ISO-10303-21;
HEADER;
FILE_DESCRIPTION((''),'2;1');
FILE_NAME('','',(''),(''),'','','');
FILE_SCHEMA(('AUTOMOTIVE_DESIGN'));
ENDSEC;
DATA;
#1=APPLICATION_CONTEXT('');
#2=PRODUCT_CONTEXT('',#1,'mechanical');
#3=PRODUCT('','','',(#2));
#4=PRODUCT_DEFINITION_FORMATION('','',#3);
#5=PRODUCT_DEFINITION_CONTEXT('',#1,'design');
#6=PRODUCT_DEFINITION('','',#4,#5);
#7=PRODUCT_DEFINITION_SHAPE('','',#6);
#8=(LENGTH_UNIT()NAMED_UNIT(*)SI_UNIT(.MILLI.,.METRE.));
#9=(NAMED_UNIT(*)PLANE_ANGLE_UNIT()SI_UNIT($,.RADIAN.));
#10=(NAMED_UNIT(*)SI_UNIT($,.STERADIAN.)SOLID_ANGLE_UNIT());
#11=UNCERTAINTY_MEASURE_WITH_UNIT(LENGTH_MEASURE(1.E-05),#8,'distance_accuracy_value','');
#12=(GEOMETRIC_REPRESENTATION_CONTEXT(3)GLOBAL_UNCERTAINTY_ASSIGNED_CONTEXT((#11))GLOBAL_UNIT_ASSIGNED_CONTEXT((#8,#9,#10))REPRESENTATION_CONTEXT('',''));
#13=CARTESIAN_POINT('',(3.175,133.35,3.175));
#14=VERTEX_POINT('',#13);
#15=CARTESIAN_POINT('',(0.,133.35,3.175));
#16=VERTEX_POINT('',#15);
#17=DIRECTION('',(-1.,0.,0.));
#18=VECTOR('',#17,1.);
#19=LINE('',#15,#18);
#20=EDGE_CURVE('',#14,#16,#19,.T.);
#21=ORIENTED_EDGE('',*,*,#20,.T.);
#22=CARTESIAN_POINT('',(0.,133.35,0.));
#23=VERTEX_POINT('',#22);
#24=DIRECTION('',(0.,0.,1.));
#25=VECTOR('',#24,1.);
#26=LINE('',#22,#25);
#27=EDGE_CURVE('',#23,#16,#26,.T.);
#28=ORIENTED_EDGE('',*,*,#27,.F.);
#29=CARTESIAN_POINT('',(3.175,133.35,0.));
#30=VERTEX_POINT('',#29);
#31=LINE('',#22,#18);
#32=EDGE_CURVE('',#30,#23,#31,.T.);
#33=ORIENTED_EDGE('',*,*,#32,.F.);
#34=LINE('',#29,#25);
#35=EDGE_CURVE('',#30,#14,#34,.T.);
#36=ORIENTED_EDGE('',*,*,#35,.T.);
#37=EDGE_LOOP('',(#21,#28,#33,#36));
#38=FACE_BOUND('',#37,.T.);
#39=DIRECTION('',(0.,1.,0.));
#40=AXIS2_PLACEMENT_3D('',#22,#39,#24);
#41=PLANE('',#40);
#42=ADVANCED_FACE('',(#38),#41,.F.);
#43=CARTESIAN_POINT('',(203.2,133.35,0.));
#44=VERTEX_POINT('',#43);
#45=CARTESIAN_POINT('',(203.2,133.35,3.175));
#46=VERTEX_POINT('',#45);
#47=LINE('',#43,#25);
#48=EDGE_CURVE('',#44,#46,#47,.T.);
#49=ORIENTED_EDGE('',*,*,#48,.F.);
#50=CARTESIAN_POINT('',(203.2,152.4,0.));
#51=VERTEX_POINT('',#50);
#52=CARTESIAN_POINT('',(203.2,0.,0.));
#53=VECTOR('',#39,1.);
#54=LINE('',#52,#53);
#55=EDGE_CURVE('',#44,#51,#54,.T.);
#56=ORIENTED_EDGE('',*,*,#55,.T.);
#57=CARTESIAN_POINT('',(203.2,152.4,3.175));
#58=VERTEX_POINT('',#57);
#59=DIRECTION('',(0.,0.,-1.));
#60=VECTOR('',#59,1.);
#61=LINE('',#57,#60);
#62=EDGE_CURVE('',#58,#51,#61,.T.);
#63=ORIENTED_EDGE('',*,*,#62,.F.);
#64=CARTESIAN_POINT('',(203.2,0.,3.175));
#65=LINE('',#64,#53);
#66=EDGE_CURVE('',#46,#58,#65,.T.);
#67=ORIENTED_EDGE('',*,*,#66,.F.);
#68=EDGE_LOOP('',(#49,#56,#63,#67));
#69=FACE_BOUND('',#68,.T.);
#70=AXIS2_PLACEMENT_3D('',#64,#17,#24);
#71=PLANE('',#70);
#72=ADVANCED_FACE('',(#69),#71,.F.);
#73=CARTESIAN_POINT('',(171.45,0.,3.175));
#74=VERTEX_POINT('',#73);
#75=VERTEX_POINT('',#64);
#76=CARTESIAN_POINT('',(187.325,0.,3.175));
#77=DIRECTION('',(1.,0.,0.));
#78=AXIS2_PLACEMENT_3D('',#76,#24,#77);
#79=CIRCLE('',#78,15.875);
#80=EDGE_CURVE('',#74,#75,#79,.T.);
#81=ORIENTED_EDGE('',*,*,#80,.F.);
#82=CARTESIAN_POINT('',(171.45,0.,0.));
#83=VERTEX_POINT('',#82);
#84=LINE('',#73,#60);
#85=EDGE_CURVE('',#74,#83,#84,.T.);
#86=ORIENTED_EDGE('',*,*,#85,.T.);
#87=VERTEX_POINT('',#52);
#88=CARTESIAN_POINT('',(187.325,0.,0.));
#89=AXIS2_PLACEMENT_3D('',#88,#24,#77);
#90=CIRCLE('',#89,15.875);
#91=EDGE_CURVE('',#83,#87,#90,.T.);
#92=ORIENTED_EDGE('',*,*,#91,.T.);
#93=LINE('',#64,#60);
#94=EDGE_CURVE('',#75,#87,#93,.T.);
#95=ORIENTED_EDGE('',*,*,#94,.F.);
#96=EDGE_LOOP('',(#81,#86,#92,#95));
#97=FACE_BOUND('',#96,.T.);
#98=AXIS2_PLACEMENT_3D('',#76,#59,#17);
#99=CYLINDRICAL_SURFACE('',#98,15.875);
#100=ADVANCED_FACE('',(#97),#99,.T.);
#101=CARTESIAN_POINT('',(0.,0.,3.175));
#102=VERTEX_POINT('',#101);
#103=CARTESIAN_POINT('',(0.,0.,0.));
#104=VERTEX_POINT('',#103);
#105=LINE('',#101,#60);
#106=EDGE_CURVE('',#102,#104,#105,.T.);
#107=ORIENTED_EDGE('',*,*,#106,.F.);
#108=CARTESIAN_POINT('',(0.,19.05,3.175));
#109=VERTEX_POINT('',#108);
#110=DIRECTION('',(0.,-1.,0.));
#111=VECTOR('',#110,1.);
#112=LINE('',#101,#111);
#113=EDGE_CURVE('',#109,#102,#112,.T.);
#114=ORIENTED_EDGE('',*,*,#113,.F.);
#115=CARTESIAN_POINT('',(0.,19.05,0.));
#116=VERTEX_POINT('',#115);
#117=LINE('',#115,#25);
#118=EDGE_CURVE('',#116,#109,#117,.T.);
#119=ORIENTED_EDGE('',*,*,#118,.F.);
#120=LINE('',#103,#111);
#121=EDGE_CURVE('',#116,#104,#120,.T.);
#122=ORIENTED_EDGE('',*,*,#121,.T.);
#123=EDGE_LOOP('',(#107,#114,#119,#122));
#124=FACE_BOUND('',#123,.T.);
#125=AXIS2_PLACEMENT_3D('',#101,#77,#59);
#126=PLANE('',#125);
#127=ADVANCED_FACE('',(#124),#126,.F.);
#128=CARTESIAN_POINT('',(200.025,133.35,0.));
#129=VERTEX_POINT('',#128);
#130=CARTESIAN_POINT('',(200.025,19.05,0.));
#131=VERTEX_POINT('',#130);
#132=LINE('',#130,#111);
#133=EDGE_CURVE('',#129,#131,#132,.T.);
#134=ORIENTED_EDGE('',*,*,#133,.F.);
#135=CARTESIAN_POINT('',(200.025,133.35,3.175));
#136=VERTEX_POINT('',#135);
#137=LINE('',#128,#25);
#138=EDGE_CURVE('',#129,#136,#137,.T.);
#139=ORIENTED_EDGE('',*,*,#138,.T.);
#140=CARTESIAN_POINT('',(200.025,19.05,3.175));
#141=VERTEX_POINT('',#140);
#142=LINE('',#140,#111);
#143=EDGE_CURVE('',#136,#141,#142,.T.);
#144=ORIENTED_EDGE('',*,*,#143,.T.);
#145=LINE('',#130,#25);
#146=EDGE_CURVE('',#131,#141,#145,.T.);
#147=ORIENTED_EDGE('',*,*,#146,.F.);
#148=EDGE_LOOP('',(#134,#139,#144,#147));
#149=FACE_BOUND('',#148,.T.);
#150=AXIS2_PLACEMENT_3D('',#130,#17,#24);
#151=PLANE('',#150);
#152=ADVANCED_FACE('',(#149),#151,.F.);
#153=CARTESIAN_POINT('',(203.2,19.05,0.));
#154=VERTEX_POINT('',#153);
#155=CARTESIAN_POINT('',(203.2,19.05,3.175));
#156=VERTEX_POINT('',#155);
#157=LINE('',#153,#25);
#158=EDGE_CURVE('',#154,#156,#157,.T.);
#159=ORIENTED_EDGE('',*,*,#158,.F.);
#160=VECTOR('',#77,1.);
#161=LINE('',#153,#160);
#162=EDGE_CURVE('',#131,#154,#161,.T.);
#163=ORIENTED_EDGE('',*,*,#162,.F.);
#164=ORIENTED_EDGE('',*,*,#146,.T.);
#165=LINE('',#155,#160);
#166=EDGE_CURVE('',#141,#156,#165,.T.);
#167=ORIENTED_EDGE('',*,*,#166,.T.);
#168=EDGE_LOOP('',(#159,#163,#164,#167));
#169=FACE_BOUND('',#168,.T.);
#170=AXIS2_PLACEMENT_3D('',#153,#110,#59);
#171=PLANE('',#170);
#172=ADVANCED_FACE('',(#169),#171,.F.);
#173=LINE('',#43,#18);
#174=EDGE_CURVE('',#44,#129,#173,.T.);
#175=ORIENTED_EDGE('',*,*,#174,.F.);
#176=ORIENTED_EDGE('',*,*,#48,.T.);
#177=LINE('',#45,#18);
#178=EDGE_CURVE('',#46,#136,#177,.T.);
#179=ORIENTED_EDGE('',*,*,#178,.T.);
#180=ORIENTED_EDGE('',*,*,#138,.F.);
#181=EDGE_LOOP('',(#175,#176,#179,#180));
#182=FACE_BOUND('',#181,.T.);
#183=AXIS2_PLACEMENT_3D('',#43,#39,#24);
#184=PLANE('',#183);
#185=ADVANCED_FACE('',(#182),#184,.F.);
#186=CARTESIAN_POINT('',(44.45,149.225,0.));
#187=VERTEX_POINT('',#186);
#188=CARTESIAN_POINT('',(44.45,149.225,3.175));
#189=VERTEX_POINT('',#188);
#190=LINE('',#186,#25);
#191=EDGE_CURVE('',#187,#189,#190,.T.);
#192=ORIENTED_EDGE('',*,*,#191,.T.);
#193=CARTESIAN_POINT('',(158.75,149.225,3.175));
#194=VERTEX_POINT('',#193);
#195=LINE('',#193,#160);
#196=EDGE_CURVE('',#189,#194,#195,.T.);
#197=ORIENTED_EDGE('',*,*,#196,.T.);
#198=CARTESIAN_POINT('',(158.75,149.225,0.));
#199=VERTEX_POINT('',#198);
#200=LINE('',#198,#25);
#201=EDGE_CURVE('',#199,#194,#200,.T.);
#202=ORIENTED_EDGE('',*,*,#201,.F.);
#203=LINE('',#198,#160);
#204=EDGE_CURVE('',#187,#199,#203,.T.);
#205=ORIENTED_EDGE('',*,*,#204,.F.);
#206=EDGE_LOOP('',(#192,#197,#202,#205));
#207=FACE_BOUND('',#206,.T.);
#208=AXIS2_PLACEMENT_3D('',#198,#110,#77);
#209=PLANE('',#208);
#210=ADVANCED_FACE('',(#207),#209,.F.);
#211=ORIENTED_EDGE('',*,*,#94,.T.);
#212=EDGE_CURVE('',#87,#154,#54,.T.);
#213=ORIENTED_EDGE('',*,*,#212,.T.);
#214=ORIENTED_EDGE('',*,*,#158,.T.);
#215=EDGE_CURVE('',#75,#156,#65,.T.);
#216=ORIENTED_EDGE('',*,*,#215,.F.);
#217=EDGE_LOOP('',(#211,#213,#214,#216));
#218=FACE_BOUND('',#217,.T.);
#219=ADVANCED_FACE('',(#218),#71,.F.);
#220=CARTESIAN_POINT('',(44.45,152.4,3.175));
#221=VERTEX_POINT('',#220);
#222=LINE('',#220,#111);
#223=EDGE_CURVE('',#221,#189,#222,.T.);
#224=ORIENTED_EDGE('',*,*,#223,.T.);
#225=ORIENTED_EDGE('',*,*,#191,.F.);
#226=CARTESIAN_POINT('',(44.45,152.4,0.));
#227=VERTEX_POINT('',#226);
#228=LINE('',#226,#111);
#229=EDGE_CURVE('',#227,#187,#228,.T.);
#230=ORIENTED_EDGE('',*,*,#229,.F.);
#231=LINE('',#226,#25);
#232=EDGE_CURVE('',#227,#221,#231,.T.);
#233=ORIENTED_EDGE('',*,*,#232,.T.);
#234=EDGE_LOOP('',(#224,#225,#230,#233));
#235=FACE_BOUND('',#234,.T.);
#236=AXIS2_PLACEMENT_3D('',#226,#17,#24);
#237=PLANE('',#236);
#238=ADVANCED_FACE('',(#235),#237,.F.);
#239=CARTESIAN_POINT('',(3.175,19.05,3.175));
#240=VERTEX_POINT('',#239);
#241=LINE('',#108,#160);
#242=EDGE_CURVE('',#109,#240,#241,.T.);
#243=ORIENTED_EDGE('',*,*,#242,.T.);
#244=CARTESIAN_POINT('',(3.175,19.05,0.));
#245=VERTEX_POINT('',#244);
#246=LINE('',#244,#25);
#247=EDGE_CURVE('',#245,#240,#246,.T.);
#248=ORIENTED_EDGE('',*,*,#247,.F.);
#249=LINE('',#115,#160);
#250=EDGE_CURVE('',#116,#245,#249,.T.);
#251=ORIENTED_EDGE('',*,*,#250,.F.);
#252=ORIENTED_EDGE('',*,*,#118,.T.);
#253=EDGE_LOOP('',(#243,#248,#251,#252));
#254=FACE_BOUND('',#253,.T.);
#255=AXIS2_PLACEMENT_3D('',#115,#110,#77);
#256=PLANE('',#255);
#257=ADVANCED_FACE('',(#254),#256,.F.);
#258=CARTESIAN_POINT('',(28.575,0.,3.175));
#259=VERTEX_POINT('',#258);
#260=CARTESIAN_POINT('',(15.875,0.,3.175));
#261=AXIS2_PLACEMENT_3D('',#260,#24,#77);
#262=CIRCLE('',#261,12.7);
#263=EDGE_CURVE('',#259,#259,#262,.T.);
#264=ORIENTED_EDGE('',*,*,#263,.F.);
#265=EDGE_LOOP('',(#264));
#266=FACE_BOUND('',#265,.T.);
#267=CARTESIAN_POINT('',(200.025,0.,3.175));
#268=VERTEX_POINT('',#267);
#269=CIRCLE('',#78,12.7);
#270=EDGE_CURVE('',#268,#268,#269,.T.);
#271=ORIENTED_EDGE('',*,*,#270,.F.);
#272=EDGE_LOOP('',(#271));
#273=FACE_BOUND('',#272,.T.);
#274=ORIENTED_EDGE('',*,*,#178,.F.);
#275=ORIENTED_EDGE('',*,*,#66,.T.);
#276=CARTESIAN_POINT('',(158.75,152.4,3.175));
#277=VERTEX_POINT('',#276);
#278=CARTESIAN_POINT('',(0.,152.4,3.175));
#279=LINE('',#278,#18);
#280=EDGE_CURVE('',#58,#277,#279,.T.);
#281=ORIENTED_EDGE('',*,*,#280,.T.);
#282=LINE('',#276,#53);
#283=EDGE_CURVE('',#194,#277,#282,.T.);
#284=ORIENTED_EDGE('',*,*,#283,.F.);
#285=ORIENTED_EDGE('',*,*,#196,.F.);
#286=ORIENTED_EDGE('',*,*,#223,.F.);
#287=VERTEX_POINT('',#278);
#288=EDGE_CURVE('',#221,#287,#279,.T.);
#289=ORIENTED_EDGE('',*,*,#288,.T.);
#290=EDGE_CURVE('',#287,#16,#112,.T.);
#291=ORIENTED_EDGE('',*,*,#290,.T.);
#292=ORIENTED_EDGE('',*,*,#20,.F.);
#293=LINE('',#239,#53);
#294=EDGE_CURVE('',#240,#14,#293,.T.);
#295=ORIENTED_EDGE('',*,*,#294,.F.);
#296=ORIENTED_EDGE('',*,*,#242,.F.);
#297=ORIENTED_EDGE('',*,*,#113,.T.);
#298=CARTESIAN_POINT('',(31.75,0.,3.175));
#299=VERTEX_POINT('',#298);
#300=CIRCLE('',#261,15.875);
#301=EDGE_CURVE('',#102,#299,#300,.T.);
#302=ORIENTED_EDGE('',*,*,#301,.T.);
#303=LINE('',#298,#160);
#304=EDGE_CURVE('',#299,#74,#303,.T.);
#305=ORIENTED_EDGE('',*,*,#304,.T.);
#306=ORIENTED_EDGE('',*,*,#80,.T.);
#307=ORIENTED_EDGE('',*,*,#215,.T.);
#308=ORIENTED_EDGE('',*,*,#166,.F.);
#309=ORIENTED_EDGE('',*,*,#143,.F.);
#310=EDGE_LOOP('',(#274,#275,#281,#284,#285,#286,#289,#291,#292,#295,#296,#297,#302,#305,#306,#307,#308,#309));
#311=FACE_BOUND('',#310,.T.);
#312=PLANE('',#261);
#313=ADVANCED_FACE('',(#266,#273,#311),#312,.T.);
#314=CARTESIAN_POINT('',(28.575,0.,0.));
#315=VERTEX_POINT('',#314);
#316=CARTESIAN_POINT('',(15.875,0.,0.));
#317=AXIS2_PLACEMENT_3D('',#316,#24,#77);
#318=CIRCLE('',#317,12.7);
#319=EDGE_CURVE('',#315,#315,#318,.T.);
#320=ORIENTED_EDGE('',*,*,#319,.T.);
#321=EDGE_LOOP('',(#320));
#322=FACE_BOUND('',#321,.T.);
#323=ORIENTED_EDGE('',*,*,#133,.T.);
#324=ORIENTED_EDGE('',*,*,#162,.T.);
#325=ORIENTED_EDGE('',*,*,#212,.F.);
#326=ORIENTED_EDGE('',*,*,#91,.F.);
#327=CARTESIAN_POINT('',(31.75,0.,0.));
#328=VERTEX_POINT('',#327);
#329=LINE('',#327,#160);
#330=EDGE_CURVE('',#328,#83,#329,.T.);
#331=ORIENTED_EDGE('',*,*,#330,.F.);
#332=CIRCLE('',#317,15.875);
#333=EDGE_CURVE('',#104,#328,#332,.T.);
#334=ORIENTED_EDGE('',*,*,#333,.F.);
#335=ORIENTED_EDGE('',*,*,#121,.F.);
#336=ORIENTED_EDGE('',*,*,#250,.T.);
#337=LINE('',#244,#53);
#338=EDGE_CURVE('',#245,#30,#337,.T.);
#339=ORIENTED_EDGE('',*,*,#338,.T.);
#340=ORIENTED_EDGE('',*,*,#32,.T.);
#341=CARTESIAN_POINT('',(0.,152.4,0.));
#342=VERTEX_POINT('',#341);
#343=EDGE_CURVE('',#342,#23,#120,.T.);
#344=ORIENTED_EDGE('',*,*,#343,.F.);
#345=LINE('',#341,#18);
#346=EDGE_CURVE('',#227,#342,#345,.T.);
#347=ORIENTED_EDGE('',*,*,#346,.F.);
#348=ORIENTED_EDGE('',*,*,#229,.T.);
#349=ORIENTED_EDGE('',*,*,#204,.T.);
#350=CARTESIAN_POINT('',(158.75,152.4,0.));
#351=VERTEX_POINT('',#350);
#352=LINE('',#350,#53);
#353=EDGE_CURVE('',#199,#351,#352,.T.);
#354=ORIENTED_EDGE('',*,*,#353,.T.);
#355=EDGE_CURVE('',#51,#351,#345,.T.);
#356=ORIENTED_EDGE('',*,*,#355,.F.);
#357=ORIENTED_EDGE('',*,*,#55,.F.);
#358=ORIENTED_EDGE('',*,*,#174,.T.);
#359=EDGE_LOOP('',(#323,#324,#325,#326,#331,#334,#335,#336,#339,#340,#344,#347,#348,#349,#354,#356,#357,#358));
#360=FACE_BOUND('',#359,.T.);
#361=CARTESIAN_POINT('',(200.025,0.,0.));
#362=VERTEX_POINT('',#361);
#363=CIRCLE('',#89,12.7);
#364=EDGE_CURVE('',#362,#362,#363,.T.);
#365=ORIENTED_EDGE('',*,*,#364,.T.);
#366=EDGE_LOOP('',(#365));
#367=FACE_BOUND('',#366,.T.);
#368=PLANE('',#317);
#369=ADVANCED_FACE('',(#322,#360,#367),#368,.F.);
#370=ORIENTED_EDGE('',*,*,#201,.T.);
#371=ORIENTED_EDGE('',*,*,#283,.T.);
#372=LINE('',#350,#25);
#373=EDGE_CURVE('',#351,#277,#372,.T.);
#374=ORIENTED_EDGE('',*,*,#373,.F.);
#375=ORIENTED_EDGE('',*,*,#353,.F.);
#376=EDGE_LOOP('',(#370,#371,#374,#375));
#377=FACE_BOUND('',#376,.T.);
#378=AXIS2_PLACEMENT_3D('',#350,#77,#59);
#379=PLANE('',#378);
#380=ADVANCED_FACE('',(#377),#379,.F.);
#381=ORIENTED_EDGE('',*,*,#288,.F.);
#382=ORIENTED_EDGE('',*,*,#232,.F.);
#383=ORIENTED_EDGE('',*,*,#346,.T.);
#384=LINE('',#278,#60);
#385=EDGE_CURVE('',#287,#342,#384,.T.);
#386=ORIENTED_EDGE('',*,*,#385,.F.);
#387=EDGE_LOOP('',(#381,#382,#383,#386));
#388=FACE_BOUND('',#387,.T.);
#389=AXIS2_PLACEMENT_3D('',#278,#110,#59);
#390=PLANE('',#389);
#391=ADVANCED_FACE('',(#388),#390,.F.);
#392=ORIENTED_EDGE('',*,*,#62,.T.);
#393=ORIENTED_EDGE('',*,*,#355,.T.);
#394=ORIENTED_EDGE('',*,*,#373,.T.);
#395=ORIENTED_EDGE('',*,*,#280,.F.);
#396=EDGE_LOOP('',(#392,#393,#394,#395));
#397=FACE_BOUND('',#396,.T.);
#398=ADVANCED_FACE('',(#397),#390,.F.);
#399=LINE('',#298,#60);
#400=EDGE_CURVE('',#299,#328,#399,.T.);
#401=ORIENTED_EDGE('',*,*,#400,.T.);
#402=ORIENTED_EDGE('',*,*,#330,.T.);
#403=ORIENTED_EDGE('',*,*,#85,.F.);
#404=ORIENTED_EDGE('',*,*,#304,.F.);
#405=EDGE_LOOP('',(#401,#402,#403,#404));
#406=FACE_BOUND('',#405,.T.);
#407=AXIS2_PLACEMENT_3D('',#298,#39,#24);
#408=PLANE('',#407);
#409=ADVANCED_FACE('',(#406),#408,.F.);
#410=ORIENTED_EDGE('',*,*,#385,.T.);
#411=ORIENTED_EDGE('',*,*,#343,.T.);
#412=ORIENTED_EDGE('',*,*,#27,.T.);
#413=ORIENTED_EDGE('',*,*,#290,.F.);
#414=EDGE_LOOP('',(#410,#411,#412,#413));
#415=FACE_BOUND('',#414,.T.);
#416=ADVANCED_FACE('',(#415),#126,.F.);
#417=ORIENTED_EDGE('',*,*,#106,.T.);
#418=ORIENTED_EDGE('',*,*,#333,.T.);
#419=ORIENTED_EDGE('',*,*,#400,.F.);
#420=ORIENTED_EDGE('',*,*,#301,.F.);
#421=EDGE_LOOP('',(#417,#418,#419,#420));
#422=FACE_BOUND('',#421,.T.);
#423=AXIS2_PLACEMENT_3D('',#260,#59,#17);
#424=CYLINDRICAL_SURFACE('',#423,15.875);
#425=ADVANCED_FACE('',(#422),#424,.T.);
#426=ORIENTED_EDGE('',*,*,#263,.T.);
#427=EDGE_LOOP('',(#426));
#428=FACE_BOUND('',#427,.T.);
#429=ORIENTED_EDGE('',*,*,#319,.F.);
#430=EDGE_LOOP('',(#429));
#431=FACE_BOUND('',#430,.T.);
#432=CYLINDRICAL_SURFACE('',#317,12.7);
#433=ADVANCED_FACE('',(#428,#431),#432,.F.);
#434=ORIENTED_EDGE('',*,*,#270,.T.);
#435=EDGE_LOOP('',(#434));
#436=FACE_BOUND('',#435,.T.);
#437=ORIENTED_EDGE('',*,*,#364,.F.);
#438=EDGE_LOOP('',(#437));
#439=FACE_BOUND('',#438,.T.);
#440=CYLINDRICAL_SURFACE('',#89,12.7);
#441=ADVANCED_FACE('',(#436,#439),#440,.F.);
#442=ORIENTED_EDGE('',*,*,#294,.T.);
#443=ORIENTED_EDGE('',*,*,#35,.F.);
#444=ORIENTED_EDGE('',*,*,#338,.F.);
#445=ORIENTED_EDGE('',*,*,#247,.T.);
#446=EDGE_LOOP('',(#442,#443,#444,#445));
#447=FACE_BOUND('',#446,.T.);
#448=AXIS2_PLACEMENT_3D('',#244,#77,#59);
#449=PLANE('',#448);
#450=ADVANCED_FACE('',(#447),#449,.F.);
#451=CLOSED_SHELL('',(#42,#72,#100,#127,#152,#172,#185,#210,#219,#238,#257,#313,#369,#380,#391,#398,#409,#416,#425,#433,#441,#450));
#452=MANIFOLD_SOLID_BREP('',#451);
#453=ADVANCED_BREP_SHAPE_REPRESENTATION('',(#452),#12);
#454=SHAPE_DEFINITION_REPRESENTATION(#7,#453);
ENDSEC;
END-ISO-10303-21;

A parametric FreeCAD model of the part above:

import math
import FreeCAD as App
import Part
import Sketcher
Q = App.Units.Quantity


def add_polygon(sketch, points):
    """Adds a closed chain of lines whose ends are joined by coincident constraints."""
    first, n = sketch.GeometryCount, len(points)
    for a, b in zip(points, points[1:] + points[:1]):
        sketch.addGeometry(Part.LineSegment(App.Vector(*a, 0), App.Vector(*b, 0)), False)
    for i in range(n):
        sketch.addConstraint(Sketcher.Constraint("Coincident", first + i, 2, first + (i + 1) % n, 1))

doc = App.newDocument("Part")
body = doc.addObject("PartDesign::Body", "Body")

# Sketch on XY plane
sketch1 = body.newObject("Sketcher::SketchObject", "Sketch")
sketch1.AttachmentSupport = (doc.getObject("XY_Plane"), [""])
sketch1.MapMode = "FlatFace"
sketch1.addGeometry(Part.LineSegment(App.Vector(0, 152.4, 0), App.Vector(0, 0, 0)), False)
sketch1.addGeometry(Part.ArcOfCircle(Part.Circle(App.Vector(15.875, 0, 0), App.Vector(0, 0, 1), 15.875), math.radians(180), math.radians(360)), False)
sketch1.addGeometry(Part.LineSegment(App.Vector(31.75, 0, 0), App.Vector(171.45, 0, 0)), False)
sketch1.addGeometry(Part.ArcOfCircle(Part.Circle(App.Vector(187.325, 0, 0), App.Vector(0, 0, 1), 15.875), math.radians(180), math.radians(360)), False)
sketch1.addGeometry(Part.LineSegment(App.Vector(203.2, 0, 0), App.Vector(203.2, 152.4, 0)), False)
sketch1.addGeometry(Part.LineSegment(App.Vector(203.2, 152.4, 0), App.Vector(0, 152.4, 0)), False)
sketch1.addConstraint(Sketcher.Constraint("Tangent", 0, 2, 1, 1))
sketch1.addConstraint(Sketcher.Constraint("Coincident", 1, 2, 2, 1))
sketch1.addConstraint(Sketcher.Constraint("Coincident", 2, 2, 3, 1))
sketch1.addConstraint(Sketcher.Constraint("Tangent", 3, 2, 4, 1))
sketch1.addConstraint(Sketcher.Constraint("Coincident", 4, 2, 5, 1))
sketch1.addConstraint(Sketcher.Constraint("Coincident", 5, 2, 0, 1))
sketch1.addConstraint(Sketcher.Constraint("Vertical", 0))
sketch1.addConstraint(Sketcher.Constraint("Horizontal", 2))
sketch1.addConstraint(Sketcher.Constraint("Vertical", 4))
sketch1.addConstraint(Sketcher.Constraint("Horizontal", 5))
sketch1.addConstraint(Sketcher.Constraint("Coincident", 0, 2, -1, 1))
sketch1.addConstraint(Sketcher.Constraint("Equal", 1, 3))
sketch1.addConstraint(Sketcher.Constraint("PointOnObject", 3, 3, -1))
sketch1.addConstraint(Sketcher.Constraint("PointOnObject", 1, 2, -1))
sketch1.addConstraint(Sketcher.Constraint("DistanceX", 5, 2, 5, 1, Q("8 in")))
sketch1.addConstraint(Sketcher.Constraint("DistanceY", 0, 2, 0, 1, Q("6 in")))
sketch1.addConstraint(Sketcher.Constraint("DistanceX", 2, 1, 2, 2, Q("5.5 in")))
pad1 = body.newObject("PartDesign::Pad", "Pad")
pad1.Profile = sketch1
pad1.Length = Q("0.125 in")

# Sketch on XY plane
sketch2 = body.newObject("Sketcher::SketchObject", "Sketch001")
sketch2.AttachmentSupport = (doc.getObject("XY_Plane"), [""])
sketch2.MapMode = "FlatFace"
sketch2.AttachmentOffset = App.Placement(App.Vector(0, 0, 0.125 * 25.4), App.Rotation())
sketch2.addGeometry(Part.Circle(App.Vector(15.875, 0, 0), App.Vector(0, 0, 1), 12.7), False)
sketch2.addGeometry(Part.Circle(App.Vector(187.325, 0, 0), App.Vector(0, 0, 1), 12.7), False)
sketch2.addConstraint(Sketcher.Constraint("Equal", 0, 1))
sketch2.addConstraint(Sketcher.Constraint("PointOnObject", 0, 3, -1))
sketch2.addConstraint(Sketcher.Constraint("PointOnObject", 1, 3, -1))
sketch2.addConstraint(Sketcher.Constraint("Diameter", 0, Q("1 in")))
sketch2.addConstraint(Sketcher.Constraint("DistanceX", 0, 3, 1, 3, Q("6.75 in")))
sketch2.addConstraint(Sketcher.Constraint("DistanceX", -1, 1, 0, 3, Q("0.625 in")))
pocket1 = body.newObject("PartDesign::Pocket", "Pocket")
pocket1.Profile = sketch2
pocket1.Type = "ThroughAll"
pocket1.Midplane = True

# Sketch on XY plane
sketch3 = body.newObject("Sketcher::SketchObject", "Sketch002")
sketch3.AttachmentSupport = (doc.getObject("XY_Plane"), [""])
sketch3.MapMode = "FlatFace"
sketch3.AttachmentOffset = App.Placement(App.Vector(0, 0, 0.125 * 25.4), App.Rotation())
add_polygon(sketch3, [(200.025, 133.35), (200.025, 19.05), (203.2, 19.05), (203.2, 133.35)])  # lines 0-3
add_polygon(sketch3, [(0, 133.35), (0, 19.05), (3.175, 19.05), (3.175, 133.35)])  # lines 4-7
add_polygon(sketch3, [(44.45, 152.4), (44.45, 149.225), (158.75, 149.225), (158.75, 152.4)])  # lines 8-11
sketch3.addConstraint(Sketcher.Constraint("Vertical", 0))
sketch3.addConstraint(Sketcher.Constraint("Horizontal", 1))
sketch3.addConstraint(Sketcher.Constraint("Vertical", 2))
sketch3.addConstraint(Sketcher.Constraint("Horizontal", 3))
sketch3.addConstraint(Sketcher.Constraint("Vertical", 4))
sketch3.addConstraint(Sketcher.Constraint("Horizontal", 5))
sketch3.addConstraint(Sketcher.Constraint("Vertical", 6))
sketch3.addConstraint(Sketcher.Constraint("Horizontal", 7))
sketch3.addConstraint(Sketcher.Constraint("Vertical", 8))
sketch3.addConstraint(Sketcher.Constraint("Horizontal", 9))
sketch3.addConstraint(Sketcher.Constraint("Vertical", 10))
sketch3.addConstraint(Sketcher.Constraint("Horizontal", 11))
sketch3.addConstraint(Sketcher.Constraint("PointOnObject", 4, 2, -2))
sketch3.addConstraint(Sketcher.Constraint("Horizontal", 1, 2, 4, 2))
sketch3.addConstraint(Sketcher.Constraint("Horizontal", 3, 2, 6, 2))
sketch3.addConstraint(Sketcher.Constraint("Equal", 3, 5))
sketch3.addConstraint(Sketcher.Constraint("Equal", 11, 0))
sketch3.addConstraint(Sketcher.Constraint("Equal", 7, 8))
sketch3.addConstraint(Sketcher.Constraint("DistanceX", 9, 1, 9, 2, Q("4.5 in")))
sketch3.addConstraint(Sketcher.Constraint("DistanceX", -1, 1, 1, 2, Q("8 in")))
sketch3.addConstraint(Sketcher.Constraint("DistanceY", -1, 1, 10, 2, Q("6 in")))
sketch3.addConstraint(Sketcher.Constraint("DistanceX", 1, 1, 1, 2, Q("0.125 in")))
sketch3.addConstraint(Sketcher.Constraint("DistanceY", -1, 1, 0, 2, Q("0.75 in")))
sketch3.addConstraint(Sketcher.Constraint("DistanceX", -1, 1, 8, 2, Q("1.75 in")))
pocket2 = body.newObject("PartDesign::Pocket", "Pocket001")
pocket2.Profile = sketch3
pocket2.Type = "ThroughAll"

doc.recompute()
